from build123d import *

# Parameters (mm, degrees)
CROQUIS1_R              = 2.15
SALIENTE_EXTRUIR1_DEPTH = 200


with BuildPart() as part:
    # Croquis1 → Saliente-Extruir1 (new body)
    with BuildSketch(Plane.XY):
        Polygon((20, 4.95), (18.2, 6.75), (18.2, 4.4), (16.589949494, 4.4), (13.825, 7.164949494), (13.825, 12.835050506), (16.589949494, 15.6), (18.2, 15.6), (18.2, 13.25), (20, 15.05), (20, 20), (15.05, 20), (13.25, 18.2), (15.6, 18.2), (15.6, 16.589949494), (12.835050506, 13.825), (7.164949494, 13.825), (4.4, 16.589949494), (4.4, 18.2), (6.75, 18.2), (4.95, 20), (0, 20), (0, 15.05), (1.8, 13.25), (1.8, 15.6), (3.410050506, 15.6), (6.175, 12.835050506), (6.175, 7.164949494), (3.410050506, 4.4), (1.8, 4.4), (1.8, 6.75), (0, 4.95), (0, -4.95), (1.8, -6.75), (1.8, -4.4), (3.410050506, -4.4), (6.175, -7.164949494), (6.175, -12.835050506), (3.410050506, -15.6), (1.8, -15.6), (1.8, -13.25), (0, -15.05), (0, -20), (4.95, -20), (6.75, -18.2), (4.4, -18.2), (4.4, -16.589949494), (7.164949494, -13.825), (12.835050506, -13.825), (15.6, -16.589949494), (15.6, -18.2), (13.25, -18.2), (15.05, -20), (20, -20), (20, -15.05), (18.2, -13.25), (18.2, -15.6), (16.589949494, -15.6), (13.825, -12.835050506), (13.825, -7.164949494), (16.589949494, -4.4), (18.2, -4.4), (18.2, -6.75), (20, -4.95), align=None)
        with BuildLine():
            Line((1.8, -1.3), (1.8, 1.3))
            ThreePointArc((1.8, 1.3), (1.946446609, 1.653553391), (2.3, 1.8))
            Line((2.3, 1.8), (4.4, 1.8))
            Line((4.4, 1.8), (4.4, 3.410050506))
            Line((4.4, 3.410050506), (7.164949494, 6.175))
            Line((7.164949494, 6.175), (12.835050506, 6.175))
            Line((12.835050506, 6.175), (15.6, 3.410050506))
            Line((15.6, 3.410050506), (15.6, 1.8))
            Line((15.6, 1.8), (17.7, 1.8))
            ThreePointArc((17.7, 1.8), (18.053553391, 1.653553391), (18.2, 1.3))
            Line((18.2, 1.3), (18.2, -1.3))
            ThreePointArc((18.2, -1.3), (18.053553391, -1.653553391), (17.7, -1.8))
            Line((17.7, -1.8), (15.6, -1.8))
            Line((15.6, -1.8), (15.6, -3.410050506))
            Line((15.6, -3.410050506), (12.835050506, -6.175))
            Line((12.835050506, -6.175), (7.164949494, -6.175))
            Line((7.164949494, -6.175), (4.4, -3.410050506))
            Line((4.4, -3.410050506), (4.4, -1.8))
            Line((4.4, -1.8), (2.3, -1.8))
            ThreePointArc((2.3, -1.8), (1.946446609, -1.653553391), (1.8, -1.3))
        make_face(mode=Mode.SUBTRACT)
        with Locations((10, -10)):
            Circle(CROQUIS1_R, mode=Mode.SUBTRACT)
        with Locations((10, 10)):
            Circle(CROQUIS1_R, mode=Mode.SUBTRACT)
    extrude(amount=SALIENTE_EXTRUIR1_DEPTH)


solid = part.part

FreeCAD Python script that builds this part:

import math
import FreeCAD as App
import Part
import Sketcher

V = App.Vector

doc = App.newDocument("Part")
body = doc.addObject("PartDesign::Body", "Body")

# Sketch on XY plane
sketch1 = body.newObject("Sketcher::SketchObject", "Sketch")
sketch1.AttachmentSupport = (doc.getObject("XY_Plane"), [""])
sketch1.MapMode = "FlatFace"
sketch1.addGeometry([
    Part.LineSegment(V(20, 4.95, 0), V(18.2, 6.75, 0)),  # 0
    Part.LineSegment(V(18.2, 6.75, 0), V(18.2, 4.4, 0)),  # 1
    Part.LineSegment(V(18.2, 4.4, 0), V(16.59, 4.4, 0)),  # 2
    Part.LineSegment(V(16.59, 4.4, 0), V(13.82, 7.16, 0)),  # 3
    Part.LineSegment(V(13.82, 7.16, 0), V(13.82, 12.84, 0)),  # 4
    Part.LineSegment(V(13.82, 12.84, 0), V(16.59, 15.6, 0)),  # 5
    Part.LineSegment(V(16.59, 15.6, 0), V(18.2, 15.6, 0)),  # 6
    Part.LineSegment(V(18.2, 15.6, 0), V(18.2, 13.25, 0)),  # 7
    Part.LineSegment(V(18.2, 13.25, 0), V(20, 15.05, 0)),  # 8
    Part.LineSegment(V(20, 15.05, 0), V(20, 20, 0)),  # 9
    Part.LineSegment(V(20, 20, 0), V(15.05, 20, 0)),  # 10
    Part.LineSegment(V(15.05, 20, 0), V(13.25, 18.2, 0)),  # 11
    Part.LineSegment(V(13.25, 18.2, 0), V(15.6, 18.2, 0)),  # 12
    Part.LineSegment(V(15.6, 18.2, 0), V(15.6, 16.59, 0)),  # 13
    Part.LineSegment(V(15.6, 16.59, 0), V(12.84, 13.82, 0)),  # 14
    Part.LineSegment(V(12.84, 13.82, 0), V(7.16, 13.82, 0)),  # 15
    Part.LineSegment(V(7.16, 13.82, 0), V(4.4, 16.59, 0)),  # 16
    Part.LineSegment(V(4.4, 16.59, 0), V(4.4, 18.2, 0)),  # 17
    Part.LineSegment(V(4.4, 18.2, 0), V(6.75, 18.2, 0)),  # 18
    Part.LineSegment(V(6.75, 18.2, 0), V(4.95, 20, 0)),  # 19
    Part.LineSegment(V(4.95, 20, 0), V(0, 20, 0)),  # 20
    Part.LineSegment(V(0, 20, 0), V(0, 15.05, 0)),  # 21
    Part.LineSegment(V(0, 15.05, 0), V(1.8, 13.25, 0)),  # 22
    Part.LineSegment(V(1.8, 13.25, 0), V(1.8, 15.6, 0)),  # 23
    Part.LineSegment(V(1.8, 15.6, 0), V(3.41, 15.6, 0)),  # 24
    Part.LineSegment(V(3.41, 15.6, 0), V(6.17, 12.84, 0)),  # 25
    Part.LineSegment(V(6.17, 12.84, 0), V(6.17, 7.16, 0)),  # 26
    Part.LineSegment(V(6.17, 7.16, 0), V(3.41, 4.4, 0)),  # 27
    Part.LineSegment(V(3.41, 4.4, 0), V(1.8, 4.4, 0)),  # 28
    Part.LineSegment(V(1.8, 4.4, 0), V(1.8, 6.75, 0)),  # 29
    Part.LineSegment(V(1.8, 6.75, 0), V(0, 4.95, 0)),  # 30
    Part.LineSegment(V(0, 4.95, 0), V(0, -4.95, 0)),  # 31
    Part.LineSegment(V(0, -4.95, 0), V(1.8, -6.75, 0)),  # 32
    Part.LineSegment(V(1.8, -6.75, 0), V(1.8, -4.4, 0)),  # 33
    Part.LineSegment(V(1.8, -4.4, 0), V(3.41, -4.4, 0)),  # 34
    Part.LineSegment(V(3.41, -4.4, 0), V(6.17, -7.16, 0)),  # 35
    Part.LineSegment(V(6.17, -7.16, 0), V(6.17, -12.84, 0)),  # 36
    Part.LineSegment(V(6.17, -12.84, 0), V(3.41, -15.6, 0)),  # 37
    Part.LineSegment(V(3.41, -15.6, 0), V(1.8, -15.6, 0)),  # 38
    Part.LineSegment(V(1.8, -15.6, 0), V(1.8, -13.25, 0)),  # 39
    Part.LineSegment(V(1.8, -13.25, 0), V(0, -15.05, 0)),  # 40
    Part.LineSegment(V(0, -15.05, 0), V(0, -20, 0)),  # 41
    Part.LineSegment(V(0, -20, 0), V(4.95, -20, 0)),  # 42
    Part.LineSegment(V(4.95, -20, 0), V(6.75, -18.2, 0)),  # 43
    Part.LineSegment(V(6.75, -18.2, 0), V(4.4, -18.2, 0)),  # 44
    Part.LineSegment(V(4.4, -18.2, 0), V(4.4, -16.59, 0)),  # 45
    Part.LineSegment(V(4.4, -16.59, 0), V(7.16, -13.82, 0)),  # 46
    Part.LineSegment(V(7.16, -13.82, 0), V(12.84, -13.82, 0)),  # 47
    Part.LineSegment(V(12.84, -13.82, 0), V(15.6, -16.59, 0)),  # 48
    Part.LineSegment(V(15.6, -16.59, 0), V(15.6, -18.2, 0)),  # 49
    Part.LineSegment(V(15.6, -18.2, 0), V(13.25, -18.2, 0)),  # 50
    Part.LineSegment(V(13.25, -18.2, 0), V(15.05, -20, 0)),  # 51
    Part.LineSegment(V(15.05, -20, 0), V(20, -20, 0)),  # 52
    Part.LineSegment(V(20, -20, 0), V(20, -15.05, 0)),  # 53
    Part.LineSegment(V(20, -15.05, 0), V(18.2, -13.25, 0)),  # 54
    Part.LineSegment(V(18.2, -13.25, 0), V(18.2, -15.6, 0)),  # 55
    Part.LineSegment(V(18.2, -15.6, 0), V(16.59, -15.6, 0)),  # 56
    Part.LineSegment(V(16.59, -15.6, 0), V(13.82, -12.84, 0)),  # 57
    Part.LineSegment(V(13.82, -12.84, 0), V(13.82, -7.16, 0)),  # 58
    Part.LineSegment(V(13.82, -7.16, 0), V(16.59, -4.4, 0)),  # 59
    Part.LineSegment(V(16.59, -4.4, 0), V(18.2, -4.4, 0)),  # 60
    Part.LineSegment(V(18.2, -4.4, 0), V(18.2, -6.75, 0)),  # 61
    Part.LineSegment(V(18.2, -6.75, 0), V(20, -4.95, 0)),  # 62
    Part.LineSegment(V(20, -4.95, 0), V(20, 4.95, 0)),  # 63
    Part.Circle(V(10, -10, 0), V(0, 0, 1), 2.15),  # 64
    Part.ArcOfCircle(Part.Circle(V(2.3, -1.3, 0), V(0, 0, 1), 0.5), math.radians(180), math.radians(270)),  # 65
    Part.LineSegment(V(1.8, -1.3, 0), V(1.8, 1.3, 0)),  # 66
    Part.ArcOfCircle(Part.Circle(V(2.3, 1.3, 0), V(0, 0, 1), 0.5), math.radians(90), math.radians(180)),  # 67
    Part.LineSegment(V(2.3, 1.8, 0), V(4.4, 1.8, 0)),  # 68
    Part.LineSegment(V(4.4, 1.8, 0), V(4.4, 3.41, 0)),  # 69
    Part.LineSegment(V(4.4, 3.41, 0), V(7.16, 6.17, 0)),  # 70
    Part.LineSegment(V(7.16, 6.17, 0), V(12.84, 6.17, 0)),  # 71
    Part.LineSegment(V(12.84, 6.17, 0), V(15.6, 3.41, 0)),  # 72
    Part.LineSegment(V(15.6, 3.41, 0), V(15.6, 1.8, 0)),  # 73
    Part.LineSegment(V(15.6, 1.8, 0), V(17.7, 1.8, 0)),  # 74
    Part.ArcOfCircle(Part.Circle(V(17.7, 1.3, 0), V(0, 0, 1), 0.5), math.radians(0), math.radians(90)),  # 75
    Part.LineSegment(V(18.2, 1.3, 0), V(18.2, -1.3, 0)),  # 76
    Part.ArcOfCircle(Part.Circle(V(17.7, -1.3, 0), V(0, 0, 1), 0.5), math.radians(-90), math.radians(0)),  # 77
    Part.LineSegment(V(17.7, -1.8, 0), V(15.6, -1.8, 0)),  # 78
    Part.LineSegment(V(15.6, -1.8, 0), V(15.6, -3.41, 0)),  # 79
    Part.LineSegment(V(15.6, -3.41, 0), V(12.84, -6.17, 0)),  # 80
    Part.LineSegment(V(12.84, -6.17, 0), V(7.16, -6.17, 0)),  # 81
    Part.LineSegment(V(7.16, -6.17, 0), V(4.4, -3.41, 0)),  # 82
    Part.LineSegment(V(4.4, -3.41, 0), V(4.4, -1.8, 0)),  # 83
    Part.LineSegment(V(4.4, -1.8, 0), V(2.3, -1.8, 0)),  # 84
    Part.Circle(V(10, 10, 0), V(0, 0, 1), 2.15),  # 85
], False)
sketch1.addConstraint([
    Sketcher.Constraint("Coincident", 0, 2, 1, 1),
    Sketcher.Constraint("Coincident", 1, 2, 2, 1),
    Sketcher.Constraint("Coincident", 2, 2, 3, 1),
    Sketcher.Constraint("Coincident", 3, 2, 4, 1),
    Sketcher.Constraint("Coincident", 4, 2, 5, 1),
    Sketcher.Constraint("Coincident", 5, 2, 6, 1),
    Sketcher.Constraint("Coincident", 6, 2, 7, 1),
    Sketcher.Constraint("Coincident", 7, 2, 8, 1),
    Sketcher.Constraint("Coincident", 8, 2, 9, 1),
    Sketcher.Constraint("Coincident", 9, 2, 10, 1),
    Sketcher.Constraint("Coincident", 10, 2, 11, 1),
    Sketcher.Constraint("Coincident", 11, 2, 12, 1),
    Sketcher.Constraint("Coincident", 12, 2, 13, 1),
    Sketcher.Constraint("Coincident", 13, 2, 14, 1),
    Sketcher.Constraint("Coincident", 14, 2, 15, 1),
    Sketcher.Constraint("Coincident", 15, 2, 16, 1),
    Sketcher.Constraint("Coincident", 16, 2, 17, 1),
    Sketcher.Constraint("Coincident", 17, 2, 18, 1),
    Sketcher.Constraint("Coincident", 18, 2, 19, 1),
    Sketcher.Constraint("Coincident", 19, 2, 20, 1),
    Sketcher.Constraint("Coincident", 20, 2, 21, 1),
    Sketcher.Constraint("Coincident", 21, 2, 22, 1),
    Sketcher.Constraint("Coincident", 22, 2, 23, 1),
    Sketcher.Constraint("Coincident", 23, 2, 24, 1),
    Sketcher.Constraint("Coincident", 24, 2, 25, 1),
    Sketcher.Constraint("Coincident", 25, 2, 26, 1),
    Sketcher.Constraint("Coincident", 26, 2, 27, 1),
    Sketcher.Constraint("Coincident", 27, 2, 28, 1),
    Sketcher.Constraint("Coincident", 28, 2, 29, 1),
    Sketcher.Constraint("Coincident", 29, 2, 30, 1),
    Sketcher.Constraint("Coincident", 30, 2, 31, 1),
    Sketcher.Constraint("Coincident", 31, 2, 32, 1),
    Sketcher.Constraint("Coincident", 32, 2, 33, 1),
    Sketcher.Constraint("Coincident", 33, 2, 34, 1),
    Sketcher.Constraint("Coincident", 34, 2, 35, 1),
    Sketcher.Constraint("Coincident", 35, 2, 36, 1),
    Sketcher.Constraint("Coincident", 36, 2, 37, 1),
    Sketcher.Constraint("Coincident", 37, 2, 38, 1),
    Sketcher.Constraint("Coincident", 38, 2, 39, 1),
    Sketcher.Constraint("Coincident", 39, 2, 40, 1),
    Sketcher.Constraint("Coincident", 40, 2, 41, 1),
    Sketcher.Constraint("Coincident", 41, 2, 42, 1),
    Sketcher.Constraint("Coincident", 42, 2, 43, 1),
    Sketcher.Constraint("Coincident", 43, 2, 44, 1),
    Sketcher.Constraint("Coincident", 44, 2, 45, 1),
    Sketcher.Constraint("Coincident", 45, 2, 46, 1),
    Sketcher.Constraint("Coincident", 46, 2, 47, 1),
    Sketcher.Constraint("Coincident", 47, 2, 48, 1),
    Sketcher.Constraint("Coincident", 48, 2, 49, 1),
    Sketcher.Constraint("Coincident", 49, 2, 50, 1),
    Sketcher.Constraint("Coincident", 50, 2, 51, 1),
    Sketcher.Constraint("Coincident", 51, 2, 52, 1),
    Sketcher.Constraint("Coincident", 52, 2, 53, 1),
    Sketcher.Constraint("Coincident", 53, 2, 54, 1),
    Sketcher.Constraint("Coincident", 54, 2, 55, 1),
    Sketcher.Constraint("Coincident", 55, 2, 56, 1),
    Sketcher.Constraint("Coincident", 56, 2, 57, 1),
    Sketcher.Constraint("Coincident", 57, 2, 58, 1),
    Sketcher.Constraint("Coincident", 58, 2, 59, 1),
    Sketcher.Constraint("Coincident", 59, 2, 60, 1),
    Sketcher.Constraint("Coincident", 60, 2, 61, 1),
    Sketcher.Constraint("Coincident", 61, 2, 62, 1),
    Sketcher.Constraint("Coincident", 62, 2, 63, 1),
    Sketcher.Constraint("Coincident", 63, 2, 0, 1),
    Sketcher.Constraint("Tangent", 65, 1, 66, 1),
    Sketcher.Constraint("Tangent", 66, 2, 67, 2),
    Sketcher.Constraint("Tangent", 67, 1, 68, 1),
    Sketcher.Constraint("Coincident", 68, 2, 69, 1),
    Sketcher.Constraint("Coincident", 69, 2, 70, 1),
    Sketcher.Constraint("Coincident", 70, 2, 71, 1),
    Sketcher.Constraint("Coincident", 71, 2, 72, 1),
    Sketcher.Constraint("Coincident", 72, 2, 73, 1),
    Sketcher.Constraint("Coincident", 73, 2, 74, 1),
    Sketcher.Constraint("Tangent", 74, 2, 75, 2),
    Sketcher.Constraint("Tangent", 75, 1, 76, 1),
    Sketcher.Constraint("Tangent", 76, 2, 77, 2),
    Sketcher.Constraint("Tangent", 77, 1, 78, 1),
    Sketcher.Constraint("Coincident", 78, 2, 79, 1),
    Sketcher.Constraint("Coincident", 79, 2, 80, 1),
    Sketcher.Constraint("Coincident", 80, 2, 81, 1),
    Sketcher.Constraint("Coincident", 81, 2, 82, 1),
    Sketcher.Constraint("Coincident", 82, 2, 83, 1),
    Sketcher.Constraint("Coincident", 83, 2, 84, 1),
    Sketcher.Constraint("Tangent", 84, 2, 65, 2),
    Sketcher.Constraint("Vertical", 1),
    Sketcher.Constraint("Horizontal", 2),
    Sketcher.Constraint("Vertical", 4),
    Sketcher.Constraint("Horizontal", 6),
    Sketcher.Constraint("Vertical", 7),
    Sketcher.Constraint("Vertical", 9),
    Sketcher.Constraint("Horizontal", 10),
    Sketcher.Constraint("Horizontal", 12),
    Sketcher.Constraint("Vertical", 13),
    Sketcher.Constraint("Horizontal", 15),
    Sketcher.Constraint("Vertical", 17),
    Sketcher.Constraint("Horizontal", 18),
    Sketcher.Constraint("Horizontal", 20),
    Sketcher.Constraint("Vertical", 21),
    Sketcher.Constraint("Vertical", 23),
    Sketcher.Constraint("Horizontal", 24),
    Sketcher.Constraint("Vertical", 26),
    Sketcher.Constraint("Horizontal", 28),
    Sketcher.Constraint("Vertical", 29),
    Sketcher.Constraint("Vertical", 31),
    Sketcher.Constraint("Vertical", 33),
    Sketcher.Constraint("Horizontal", 34),
    Sketcher.Constraint("Vertical", 36),
    Sketcher.Constraint("Horizontal", 38),
    Sketcher.Constraint("Vertical", 39),
    Sketcher.Constraint("Vertical", 41),
    Sketcher.Constraint("Horizontal", 42),
    Sketcher.Constraint("Horizontal", 44),
    Sketcher.Constraint("Vertical", 45),
    Sketcher.Constraint("Horizontal", 47),
    Sketcher.Constraint("Vertical", 49),
    Sketcher.Constraint("Horizontal", 50),
    Sketcher.Constraint("Horizontal", 52),
    Sketcher.Constraint("Vertical", 53),
    Sketcher.Constraint("Vertical", 55),
    Sketcher.Constraint("Horizontal", 56),
    Sketcher.Constraint("Vertical", 58),
    Sketcher.Constraint("Horizontal", 60),
    Sketcher.Constraint("Vertical", 61),
    Sketcher.Constraint("Vertical", 63),
    Sketcher.Constraint("Vertical", 66),
    Sketcher.Constraint("Horizontal", 68),
    Sketcher.Constraint("Vertical", 69),
    Sketcher.Constraint("Horizontal", 71),
    Sketcher.Constraint("Vertical", 73),
    Sketcher.Constraint("Horizontal", 74),
    Sketcher.Constraint("Vertical", 76),
    Sketcher.Constraint("Horizontal", 78),
    Sketcher.Constraint("Vertical", 79),
    Sketcher.Constraint("Horizontal", 81),
    Sketcher.Constraint("Vertical", 83),
    Sketcher.Constraint("Horizontal", 84),
    Sketcher.Constraint("Equal", 65, 67),
    Sketcher.Constraint("Equal", 67, 75),
    Sketcher.Constraint("Equal", 75, 77),
    Sketcher.Constraint("Equal", 64, 85),
    Sketcher.Constraint("Symmetric", 30, 2, 31, 2, -1, 1),
    Sketcher.Constraint("Symmetric", 21, 2, 40, 2, -1, 1),
    Sketcher.Constraint("Symmetric", 64, 3, 85, 3, -1),
    Sketcher.Constraint("Symmetric", 29, 2, 32, 2, -1),
    Sketcher.Constraint("Symmetric", 27, 2, 34, 2, -1),
    Sketcher.Constraint("Symmetric", 26, 2, 35, 2, -1),
    Sketcher.Constraint("Symmetric", 24, 2, 37, 2, -1),
    Sketcher.Constraint("Symmetric", 22, 2, 39, 2, -1),
    Sketcher.Constraint("Symmetric", 20, 2, 41, 2, -1),
    Sketcher.Constraint("Symmetric", 18, 2, 43, 2, -1),
    Sketcher.Constraint("Symmetric", 16, 2, 45, 2, -1),
    Sketcher.Constraint("Symmetric", 15, 2, 46, 2, -1),
    Sketcher.Constraint("Symmetric", 13, 2, 48, 2, -1),
    Sketcher.Constraint("Symmetric", 11, 2, 50, 2, -1),
    Sketcher.Constraint("Symmetric", 10, 2, 51, 2, -1),
    Sketcher.Constraint("Symmetric", 8, 2, 53, 2, -1),
    Sketcher.Constraint("Symmetric", 7, 2, 54, 2, -1),
    Sketcher.Constraint("Symmetric", 5, 2, 56, 2, -1),
    Sketcher.Constraint("Symmetric", 4, 2, 57, 2, -1),
    Sketcher.Constraint("Symmetric", 2, 2, 59, 2, -1),
    Sketcher.Constraint("Symmetric", 0, 2, 61, 2, -1),
    Sketcher.Constraint("Symmetric", 73, 2, 78, 2, -1),
    Sketcher.Constraint("Symmetric", 71, 2, 80, 2, -1),
    Sketcher.Constraint("Symmetric", 69, 2, 82, 2, -1),
    Sketcher.Constraint("Parallel", 0, 3),
    Sketcher.Constraint("Perpendicular", 3, 5),
    Sketcher.Constraint("Parallel", 5, 8),
    Sketcher.Constraint("Parallel", 8, 11),
    Sketcher.Constraint("Parallel", 11, 14),
    Sketcher.Constraint("Perpendicular", 14, 16),
    Sketcher.Constraint("Parallel", 16, 19),
    Sketcher.Constraint("Parallel", 19, 22),
    Sketcher.Constraint("Parallel", 22, 25),
    Sketcher.Constraint("Perpendicular", 25, 27),
    Sketcher.Constraint("Parallel", 27, 30),
    Sketcher.Constraint("Perpendicular", 30, 32),
    Sketcher.Constraint("Perpendicular", 35, 37),
    Sketcher.Constraint("Parallel", 40, 43),
    Sketcher.Constraint("Perpendicular", 46, 48),
    Sketcher.Constraint("Perpendicular", 57, 59),
    Sketcher.Constraint("Parallel", 59, 62),
    Sketcher.Constraint("Parallel", 62, 70),
    Sketcher.Constraint("Perpendicular", 70, 72),
    Sketcher.Constraint("Perpendicular", 72, 80),
    Sketcher.Constraint("Perpendicular", 80, 82),
    Sketcher.Constraint("Horizontal", 67, 3, 75, 3),
    Sketcher.Constraint("Horizontal", 65, 3, 77, 3),
    Sketcher.Constraint("Horizontal", 13, 2, 16, 2),
    Sketcher.Constraint("Horizontal", 12, 2, 17, 2),
    Sketcher.Constraint("Horizontal", 10, 2, 19, 2),
    Sketcher.Constraint("Horizontal", 8, 2, 21, 2),
    Sketcher.Constraint("Horizontal", 7, 2, 22, 2),
    Sketcher.Constraint("Horizontal", 6, 2, 23, 2),
    Sketcher.Constraint("Horizontal", 4, 2, 25, 2),
    Sketcher.Constraint("Horizontal", 3, 2, 26, 2),
    Sketcher.Constraint("Horizontal", 2, 2, 27, 2),
    Sketcher.Constraint("Horizontal", 0, 2, 29, 2),
    Sketcher.Constraint("Horizontal", 31, 2, 62, 2),
    Sketcher.Constraint("Horizontal", 69, 2, 72, 2),
    Sketcher.Constraint("Vertical", 2, 2, 5, 2),
    Sketcher.Constraint("Vertical", 1, 2, 6, 2),
    Sketcher.Constraint("Vertical", 23, 2, 28, 2),
    Sketcher.Constraint("Vertical", 39, 2, 65, 1),
    Sketcher.Constraint("Vertical", 45, 2, 68, 2),
    Sketcher.Constraint("Vertical", 46, 2, 70, 2),
    Sketcher.Constraint("Vertical", 47, 2, 71, 2),
    Sketcher.Constraint("Vertical", 61, 2, 75, 1),
    Sketcher.Constraint("Equal", 12, 18),
    Sketcher.Constraint("Equal", 10, 20),
    Sketcher.Constraint("Equal", 6, 24),
    Sketcher.Constraint("Equal", 50, 1),
    Sketcher.Constraint("Equal", 81, 4),
    Sketcher.Constraint("Equal", 1, 7),
    Sketcher.Constraint("Equal", 52, 9),
    Sketcher.Constraint("Equal", 60, 13),
    Sketcher.Constraint("Equal", 49, 69),
    Sketcher.Constraint("Equal", 8, 11),
    Sketcher.Constraint("Equal", 5, 14),
    Sketcher.Constraint("Diameter", 64, 4.3),
    Sketcher.Constraint("Radius", 65, 0.5),
    Sketcher.Constraint("DistanceX", 68, 1, 68, 2, 2.1),
    Sketcher.Constraint("DistanceY", 31, 2, 31, 1, 9.9),
    Sketcher.Constraint("DistanceY", 66, 1, 66, 2, 2.6),
    Sketcher.Constraint("DistanceX", -1, 1, 64, 3, 10.0),
    Sketcher.Constraint("DistanceY", 64, 3, -1, 1, 10.0),
    Sketcher.Constraint("DistanceX", -1, 1, 8, 2, 20.0),
    Sketcher.Constraint("DistanceY", -1, 1, 9, 2, 20.0),
    Sketcher.Constraint("DistanceX", -1, 1, 65, 3, 2.3),
    Sketcher.Constraint("DistanceX", 15, 2, 15, 1, 5.670101),
    Sketcher.Constraint("DistanceX", -1, 1, 3, 2, 13.825),
])
pad1 = body.newObject("PartDesign::Pad", "Pad")
pad1.Profile = sketch1
pad1.Length = 200

doc.recompute()
